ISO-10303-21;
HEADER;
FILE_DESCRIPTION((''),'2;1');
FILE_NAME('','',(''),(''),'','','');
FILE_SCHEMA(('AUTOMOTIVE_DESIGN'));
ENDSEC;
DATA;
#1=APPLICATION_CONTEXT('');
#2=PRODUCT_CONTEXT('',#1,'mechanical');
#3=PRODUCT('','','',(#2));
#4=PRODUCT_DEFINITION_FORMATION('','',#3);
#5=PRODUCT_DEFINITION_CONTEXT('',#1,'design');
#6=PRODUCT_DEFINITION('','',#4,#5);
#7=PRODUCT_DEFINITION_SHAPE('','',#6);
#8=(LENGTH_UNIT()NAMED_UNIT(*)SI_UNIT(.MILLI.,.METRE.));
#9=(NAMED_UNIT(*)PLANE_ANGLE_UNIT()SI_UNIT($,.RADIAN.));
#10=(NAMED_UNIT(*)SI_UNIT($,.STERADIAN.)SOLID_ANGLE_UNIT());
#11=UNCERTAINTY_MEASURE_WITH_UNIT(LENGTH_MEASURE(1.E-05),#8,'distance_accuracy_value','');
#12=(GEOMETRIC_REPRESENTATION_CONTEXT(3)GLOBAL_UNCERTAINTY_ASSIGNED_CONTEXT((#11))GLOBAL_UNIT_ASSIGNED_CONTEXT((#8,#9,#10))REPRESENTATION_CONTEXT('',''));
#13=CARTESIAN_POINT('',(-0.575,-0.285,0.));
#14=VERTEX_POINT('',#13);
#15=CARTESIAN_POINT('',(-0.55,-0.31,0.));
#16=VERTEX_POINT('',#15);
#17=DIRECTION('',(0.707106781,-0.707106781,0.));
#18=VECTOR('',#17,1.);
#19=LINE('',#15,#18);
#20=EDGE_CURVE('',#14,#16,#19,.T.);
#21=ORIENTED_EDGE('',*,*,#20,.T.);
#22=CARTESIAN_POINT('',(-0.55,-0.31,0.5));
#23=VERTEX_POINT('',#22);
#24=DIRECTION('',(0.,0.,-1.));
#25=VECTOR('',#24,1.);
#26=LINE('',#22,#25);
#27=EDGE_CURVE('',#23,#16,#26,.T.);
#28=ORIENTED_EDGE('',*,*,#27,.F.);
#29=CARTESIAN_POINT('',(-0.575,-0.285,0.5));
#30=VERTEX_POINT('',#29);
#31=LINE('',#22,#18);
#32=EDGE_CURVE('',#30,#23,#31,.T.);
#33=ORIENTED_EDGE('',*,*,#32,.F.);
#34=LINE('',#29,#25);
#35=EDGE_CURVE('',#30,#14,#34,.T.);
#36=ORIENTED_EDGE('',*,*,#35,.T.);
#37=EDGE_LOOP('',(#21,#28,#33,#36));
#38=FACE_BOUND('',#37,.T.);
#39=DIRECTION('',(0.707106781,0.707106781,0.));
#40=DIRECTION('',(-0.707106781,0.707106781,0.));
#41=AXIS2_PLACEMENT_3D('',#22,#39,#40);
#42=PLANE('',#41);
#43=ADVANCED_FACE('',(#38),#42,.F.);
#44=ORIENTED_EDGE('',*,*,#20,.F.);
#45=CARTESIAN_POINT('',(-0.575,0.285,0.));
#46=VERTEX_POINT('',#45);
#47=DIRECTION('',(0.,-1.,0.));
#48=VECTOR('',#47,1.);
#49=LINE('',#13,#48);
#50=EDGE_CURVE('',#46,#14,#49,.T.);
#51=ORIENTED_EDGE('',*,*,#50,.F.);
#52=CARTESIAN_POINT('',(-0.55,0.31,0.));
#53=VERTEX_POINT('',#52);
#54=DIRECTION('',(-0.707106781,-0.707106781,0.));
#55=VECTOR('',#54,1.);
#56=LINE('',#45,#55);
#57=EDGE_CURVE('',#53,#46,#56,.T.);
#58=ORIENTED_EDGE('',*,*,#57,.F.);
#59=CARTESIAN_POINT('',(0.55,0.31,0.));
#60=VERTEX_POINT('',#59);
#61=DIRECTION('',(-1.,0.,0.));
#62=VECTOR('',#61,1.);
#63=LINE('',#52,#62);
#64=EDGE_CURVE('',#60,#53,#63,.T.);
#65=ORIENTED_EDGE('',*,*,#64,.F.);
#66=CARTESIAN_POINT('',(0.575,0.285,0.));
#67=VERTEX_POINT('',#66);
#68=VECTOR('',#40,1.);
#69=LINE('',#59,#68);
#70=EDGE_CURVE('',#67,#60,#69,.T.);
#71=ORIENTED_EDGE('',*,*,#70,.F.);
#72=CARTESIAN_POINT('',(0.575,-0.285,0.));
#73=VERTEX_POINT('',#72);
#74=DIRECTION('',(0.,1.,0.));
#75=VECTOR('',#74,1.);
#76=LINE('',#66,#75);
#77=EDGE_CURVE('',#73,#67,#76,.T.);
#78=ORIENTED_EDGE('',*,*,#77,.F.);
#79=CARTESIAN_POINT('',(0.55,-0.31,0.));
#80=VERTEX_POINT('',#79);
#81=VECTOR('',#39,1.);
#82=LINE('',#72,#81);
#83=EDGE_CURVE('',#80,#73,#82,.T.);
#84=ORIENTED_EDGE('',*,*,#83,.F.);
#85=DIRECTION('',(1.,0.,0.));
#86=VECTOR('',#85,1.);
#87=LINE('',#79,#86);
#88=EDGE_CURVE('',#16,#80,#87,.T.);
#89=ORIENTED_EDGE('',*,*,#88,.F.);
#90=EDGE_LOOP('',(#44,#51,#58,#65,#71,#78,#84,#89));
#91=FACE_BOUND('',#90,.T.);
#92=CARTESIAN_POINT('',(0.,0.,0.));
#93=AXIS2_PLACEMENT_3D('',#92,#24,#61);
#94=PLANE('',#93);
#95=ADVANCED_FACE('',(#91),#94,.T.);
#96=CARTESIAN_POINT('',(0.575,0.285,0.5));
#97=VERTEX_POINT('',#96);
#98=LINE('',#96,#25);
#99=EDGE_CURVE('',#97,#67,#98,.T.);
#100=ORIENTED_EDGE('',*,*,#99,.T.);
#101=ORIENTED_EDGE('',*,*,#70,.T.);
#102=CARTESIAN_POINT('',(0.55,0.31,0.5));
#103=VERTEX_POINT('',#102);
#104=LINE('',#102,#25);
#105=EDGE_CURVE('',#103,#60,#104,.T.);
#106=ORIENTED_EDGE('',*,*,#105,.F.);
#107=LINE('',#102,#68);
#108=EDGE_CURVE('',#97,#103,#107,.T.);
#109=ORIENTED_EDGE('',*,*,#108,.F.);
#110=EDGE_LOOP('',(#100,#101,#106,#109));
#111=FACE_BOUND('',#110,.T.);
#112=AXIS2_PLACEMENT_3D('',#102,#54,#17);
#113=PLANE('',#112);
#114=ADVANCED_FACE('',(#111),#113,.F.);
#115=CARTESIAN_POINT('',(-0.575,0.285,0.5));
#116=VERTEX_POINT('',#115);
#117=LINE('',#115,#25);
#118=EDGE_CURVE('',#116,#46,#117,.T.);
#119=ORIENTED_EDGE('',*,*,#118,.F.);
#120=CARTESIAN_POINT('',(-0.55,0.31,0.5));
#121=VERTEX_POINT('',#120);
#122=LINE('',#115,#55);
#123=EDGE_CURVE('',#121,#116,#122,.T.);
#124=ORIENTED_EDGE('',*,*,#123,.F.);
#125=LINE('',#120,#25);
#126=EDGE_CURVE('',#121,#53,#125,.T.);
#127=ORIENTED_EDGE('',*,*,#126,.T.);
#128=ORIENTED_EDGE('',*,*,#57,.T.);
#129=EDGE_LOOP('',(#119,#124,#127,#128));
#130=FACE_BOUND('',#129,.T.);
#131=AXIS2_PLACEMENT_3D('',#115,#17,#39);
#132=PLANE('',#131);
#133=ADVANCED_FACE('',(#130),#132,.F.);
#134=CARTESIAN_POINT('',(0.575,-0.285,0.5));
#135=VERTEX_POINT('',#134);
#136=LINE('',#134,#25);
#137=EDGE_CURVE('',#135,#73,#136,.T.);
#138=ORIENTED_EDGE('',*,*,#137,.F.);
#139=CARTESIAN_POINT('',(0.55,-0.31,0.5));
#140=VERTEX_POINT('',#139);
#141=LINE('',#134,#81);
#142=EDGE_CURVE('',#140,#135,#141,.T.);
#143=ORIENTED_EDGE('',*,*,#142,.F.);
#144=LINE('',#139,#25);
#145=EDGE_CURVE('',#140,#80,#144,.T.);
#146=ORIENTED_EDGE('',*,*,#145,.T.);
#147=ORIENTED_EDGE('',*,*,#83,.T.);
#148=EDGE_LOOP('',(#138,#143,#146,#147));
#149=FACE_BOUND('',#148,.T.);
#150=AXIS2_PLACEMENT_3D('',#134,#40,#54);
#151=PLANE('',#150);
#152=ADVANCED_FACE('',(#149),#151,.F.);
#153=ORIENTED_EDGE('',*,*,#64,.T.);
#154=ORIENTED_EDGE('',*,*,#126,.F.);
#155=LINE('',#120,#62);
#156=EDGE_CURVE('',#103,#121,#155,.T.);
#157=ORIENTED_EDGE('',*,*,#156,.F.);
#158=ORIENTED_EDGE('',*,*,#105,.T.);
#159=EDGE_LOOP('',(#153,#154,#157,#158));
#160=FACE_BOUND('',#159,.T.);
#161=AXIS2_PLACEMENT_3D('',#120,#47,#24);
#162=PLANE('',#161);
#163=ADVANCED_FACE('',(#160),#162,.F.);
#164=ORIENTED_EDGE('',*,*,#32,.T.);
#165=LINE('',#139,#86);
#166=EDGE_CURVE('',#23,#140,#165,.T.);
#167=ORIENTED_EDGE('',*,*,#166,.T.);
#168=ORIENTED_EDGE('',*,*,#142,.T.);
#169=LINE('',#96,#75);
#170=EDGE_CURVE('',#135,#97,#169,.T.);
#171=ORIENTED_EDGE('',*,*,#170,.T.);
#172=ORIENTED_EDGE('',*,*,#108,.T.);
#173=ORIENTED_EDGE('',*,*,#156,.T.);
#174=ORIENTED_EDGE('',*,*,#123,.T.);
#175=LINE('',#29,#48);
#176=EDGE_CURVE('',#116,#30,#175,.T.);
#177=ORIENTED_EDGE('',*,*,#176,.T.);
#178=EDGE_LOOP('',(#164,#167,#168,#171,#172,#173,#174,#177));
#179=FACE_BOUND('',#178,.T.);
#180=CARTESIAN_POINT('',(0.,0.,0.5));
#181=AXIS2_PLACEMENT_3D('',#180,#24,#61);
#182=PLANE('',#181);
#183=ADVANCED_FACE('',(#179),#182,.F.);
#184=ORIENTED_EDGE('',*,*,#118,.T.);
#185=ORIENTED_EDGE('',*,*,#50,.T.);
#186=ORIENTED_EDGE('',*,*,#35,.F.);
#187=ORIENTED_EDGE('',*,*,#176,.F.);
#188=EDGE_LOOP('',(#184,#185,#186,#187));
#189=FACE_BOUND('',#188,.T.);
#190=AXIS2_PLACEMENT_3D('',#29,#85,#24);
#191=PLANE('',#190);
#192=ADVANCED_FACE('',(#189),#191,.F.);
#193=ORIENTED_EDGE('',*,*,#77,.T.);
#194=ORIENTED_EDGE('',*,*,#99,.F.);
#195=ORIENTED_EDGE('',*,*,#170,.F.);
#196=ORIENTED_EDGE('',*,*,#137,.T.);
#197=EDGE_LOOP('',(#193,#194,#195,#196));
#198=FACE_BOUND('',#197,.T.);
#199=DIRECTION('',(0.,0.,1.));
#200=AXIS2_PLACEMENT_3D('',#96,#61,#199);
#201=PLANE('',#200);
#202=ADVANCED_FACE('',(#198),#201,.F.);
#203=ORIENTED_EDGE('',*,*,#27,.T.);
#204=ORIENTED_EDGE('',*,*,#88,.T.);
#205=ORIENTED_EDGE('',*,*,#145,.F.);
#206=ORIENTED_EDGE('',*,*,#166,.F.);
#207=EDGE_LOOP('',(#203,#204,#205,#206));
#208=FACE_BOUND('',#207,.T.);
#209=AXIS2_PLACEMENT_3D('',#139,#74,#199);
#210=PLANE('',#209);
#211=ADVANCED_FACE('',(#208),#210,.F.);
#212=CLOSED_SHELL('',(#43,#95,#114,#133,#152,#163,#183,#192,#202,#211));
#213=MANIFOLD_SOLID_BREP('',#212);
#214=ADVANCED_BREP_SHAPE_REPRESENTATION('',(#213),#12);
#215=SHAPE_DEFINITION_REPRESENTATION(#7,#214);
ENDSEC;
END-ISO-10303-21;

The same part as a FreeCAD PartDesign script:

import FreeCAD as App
import Part
import Sketcher
from FreeCAD import Vector

doc = App.newDocument("Part")
body = doc.addObject("PartDesign::Body", "Body")

# Sketch on XY plane
sketch1 = body.newObject("Sketcher::SketchObject", "Sketch")
sketch1.AttachmentSupport = (doc.getObject("XY_Plane"), [""])
sketch1.MapMode = "FlatFace"
sketch1.addGeometry([
    Part.LineSegment(Vector(0.575, 0.285, 0), Vector(0.55, 0.31, 0)),  # 0
    Part.LineSegment(Vector(0.55, 0.31, 0), Vector(-0.55, 0.31, 0)),  # 1
    Part.LineSegment(Vector(-0.55, 0.31, 0), Vector(-0.575, 0.285, 0)),  # 2
    Part.LineSegment(Vector(-0.575, 0.285, 0), Vector(-0.575, -0.285, 0)),  # 3
    Part.LineSegment(Vector(-0.575, -0.285, 0), Vector(-0.55, -0.31, 0)),  # 4
    Part.LineSegment(Vector(-0.55, -0.31, 0), Vector(0.55, -0.31, 0)),  # 5
    Part.LineSegment(Vector(0.55, -0.31, 0), Vector(0.575, -0.285, 0)),  # 6
    Part.LineSegment(Vector(0.575, -0.285, 0), Vector(0.575, 0.285, 0)),  # 7
], False)
sketch1.addConstraint([
    Sketcher.Constraint("Coincident", 0, 2, 1, 1),
    Sketcher.Constraint("Coincident", 1, 2, 2, 1),
    Sketcher.Constraint("Coincident", 2, 2, 3, 1),
    Sketcher.Constraint("Coincident", 3, 2, 4, 1),
    Sketcher.Constraint("Coincident", 4, 2, 5, 1),
    Sketcher.Constraint("Coincident", 5, 2, 6, 1),
    Sketcher.Constraint("Coincident", 6, 2, 7, 1),
    Sketcher.Constraint("Coincident", 7, 2, 0, 1),
    Sketcher.Constraint("Horizontal", 1),
    Sketcher.Constraint("Vertical", 3),
    Sketcher.Constraint("Horizontal", 5),
    Sketcher.Constraint("Vertical", 7),
    Sketcher.Constraint("Symmetric", 0, 2, 4, 2, -1, 1),
    Sketcher.Constraint("Symmetric", 2, 2, 6, 2, -1, 1),
    Sketcher.Constraint("Perpendicular", 0, 2),
    Sketcher.Constraint("Perpendicular", 2, 4),
    Sketcher.Constraint("Perpendicular", 4, 6),
    Sketcher.Constraint("Horizontal", 3, 2, 6, 2),
    Sketcher.Constraint("Vertical", 1, 2, 4, 2),
    Sketcher.Constraint("DistanceX", 1, 2, 1, 1, 1.1),
    Sketcher.Constraint("DistanceY", 3, 2, 3, 1, 0.57),
    Sketcher.Constraint("DistanceY", -1, 1, 0, 2, 0.31),
])
pad1 = body.newObject("PartDesign::Pad", "Pad")
pad1.Profile = sketch1
pad1.Length = 0.5

doc.recompute()
